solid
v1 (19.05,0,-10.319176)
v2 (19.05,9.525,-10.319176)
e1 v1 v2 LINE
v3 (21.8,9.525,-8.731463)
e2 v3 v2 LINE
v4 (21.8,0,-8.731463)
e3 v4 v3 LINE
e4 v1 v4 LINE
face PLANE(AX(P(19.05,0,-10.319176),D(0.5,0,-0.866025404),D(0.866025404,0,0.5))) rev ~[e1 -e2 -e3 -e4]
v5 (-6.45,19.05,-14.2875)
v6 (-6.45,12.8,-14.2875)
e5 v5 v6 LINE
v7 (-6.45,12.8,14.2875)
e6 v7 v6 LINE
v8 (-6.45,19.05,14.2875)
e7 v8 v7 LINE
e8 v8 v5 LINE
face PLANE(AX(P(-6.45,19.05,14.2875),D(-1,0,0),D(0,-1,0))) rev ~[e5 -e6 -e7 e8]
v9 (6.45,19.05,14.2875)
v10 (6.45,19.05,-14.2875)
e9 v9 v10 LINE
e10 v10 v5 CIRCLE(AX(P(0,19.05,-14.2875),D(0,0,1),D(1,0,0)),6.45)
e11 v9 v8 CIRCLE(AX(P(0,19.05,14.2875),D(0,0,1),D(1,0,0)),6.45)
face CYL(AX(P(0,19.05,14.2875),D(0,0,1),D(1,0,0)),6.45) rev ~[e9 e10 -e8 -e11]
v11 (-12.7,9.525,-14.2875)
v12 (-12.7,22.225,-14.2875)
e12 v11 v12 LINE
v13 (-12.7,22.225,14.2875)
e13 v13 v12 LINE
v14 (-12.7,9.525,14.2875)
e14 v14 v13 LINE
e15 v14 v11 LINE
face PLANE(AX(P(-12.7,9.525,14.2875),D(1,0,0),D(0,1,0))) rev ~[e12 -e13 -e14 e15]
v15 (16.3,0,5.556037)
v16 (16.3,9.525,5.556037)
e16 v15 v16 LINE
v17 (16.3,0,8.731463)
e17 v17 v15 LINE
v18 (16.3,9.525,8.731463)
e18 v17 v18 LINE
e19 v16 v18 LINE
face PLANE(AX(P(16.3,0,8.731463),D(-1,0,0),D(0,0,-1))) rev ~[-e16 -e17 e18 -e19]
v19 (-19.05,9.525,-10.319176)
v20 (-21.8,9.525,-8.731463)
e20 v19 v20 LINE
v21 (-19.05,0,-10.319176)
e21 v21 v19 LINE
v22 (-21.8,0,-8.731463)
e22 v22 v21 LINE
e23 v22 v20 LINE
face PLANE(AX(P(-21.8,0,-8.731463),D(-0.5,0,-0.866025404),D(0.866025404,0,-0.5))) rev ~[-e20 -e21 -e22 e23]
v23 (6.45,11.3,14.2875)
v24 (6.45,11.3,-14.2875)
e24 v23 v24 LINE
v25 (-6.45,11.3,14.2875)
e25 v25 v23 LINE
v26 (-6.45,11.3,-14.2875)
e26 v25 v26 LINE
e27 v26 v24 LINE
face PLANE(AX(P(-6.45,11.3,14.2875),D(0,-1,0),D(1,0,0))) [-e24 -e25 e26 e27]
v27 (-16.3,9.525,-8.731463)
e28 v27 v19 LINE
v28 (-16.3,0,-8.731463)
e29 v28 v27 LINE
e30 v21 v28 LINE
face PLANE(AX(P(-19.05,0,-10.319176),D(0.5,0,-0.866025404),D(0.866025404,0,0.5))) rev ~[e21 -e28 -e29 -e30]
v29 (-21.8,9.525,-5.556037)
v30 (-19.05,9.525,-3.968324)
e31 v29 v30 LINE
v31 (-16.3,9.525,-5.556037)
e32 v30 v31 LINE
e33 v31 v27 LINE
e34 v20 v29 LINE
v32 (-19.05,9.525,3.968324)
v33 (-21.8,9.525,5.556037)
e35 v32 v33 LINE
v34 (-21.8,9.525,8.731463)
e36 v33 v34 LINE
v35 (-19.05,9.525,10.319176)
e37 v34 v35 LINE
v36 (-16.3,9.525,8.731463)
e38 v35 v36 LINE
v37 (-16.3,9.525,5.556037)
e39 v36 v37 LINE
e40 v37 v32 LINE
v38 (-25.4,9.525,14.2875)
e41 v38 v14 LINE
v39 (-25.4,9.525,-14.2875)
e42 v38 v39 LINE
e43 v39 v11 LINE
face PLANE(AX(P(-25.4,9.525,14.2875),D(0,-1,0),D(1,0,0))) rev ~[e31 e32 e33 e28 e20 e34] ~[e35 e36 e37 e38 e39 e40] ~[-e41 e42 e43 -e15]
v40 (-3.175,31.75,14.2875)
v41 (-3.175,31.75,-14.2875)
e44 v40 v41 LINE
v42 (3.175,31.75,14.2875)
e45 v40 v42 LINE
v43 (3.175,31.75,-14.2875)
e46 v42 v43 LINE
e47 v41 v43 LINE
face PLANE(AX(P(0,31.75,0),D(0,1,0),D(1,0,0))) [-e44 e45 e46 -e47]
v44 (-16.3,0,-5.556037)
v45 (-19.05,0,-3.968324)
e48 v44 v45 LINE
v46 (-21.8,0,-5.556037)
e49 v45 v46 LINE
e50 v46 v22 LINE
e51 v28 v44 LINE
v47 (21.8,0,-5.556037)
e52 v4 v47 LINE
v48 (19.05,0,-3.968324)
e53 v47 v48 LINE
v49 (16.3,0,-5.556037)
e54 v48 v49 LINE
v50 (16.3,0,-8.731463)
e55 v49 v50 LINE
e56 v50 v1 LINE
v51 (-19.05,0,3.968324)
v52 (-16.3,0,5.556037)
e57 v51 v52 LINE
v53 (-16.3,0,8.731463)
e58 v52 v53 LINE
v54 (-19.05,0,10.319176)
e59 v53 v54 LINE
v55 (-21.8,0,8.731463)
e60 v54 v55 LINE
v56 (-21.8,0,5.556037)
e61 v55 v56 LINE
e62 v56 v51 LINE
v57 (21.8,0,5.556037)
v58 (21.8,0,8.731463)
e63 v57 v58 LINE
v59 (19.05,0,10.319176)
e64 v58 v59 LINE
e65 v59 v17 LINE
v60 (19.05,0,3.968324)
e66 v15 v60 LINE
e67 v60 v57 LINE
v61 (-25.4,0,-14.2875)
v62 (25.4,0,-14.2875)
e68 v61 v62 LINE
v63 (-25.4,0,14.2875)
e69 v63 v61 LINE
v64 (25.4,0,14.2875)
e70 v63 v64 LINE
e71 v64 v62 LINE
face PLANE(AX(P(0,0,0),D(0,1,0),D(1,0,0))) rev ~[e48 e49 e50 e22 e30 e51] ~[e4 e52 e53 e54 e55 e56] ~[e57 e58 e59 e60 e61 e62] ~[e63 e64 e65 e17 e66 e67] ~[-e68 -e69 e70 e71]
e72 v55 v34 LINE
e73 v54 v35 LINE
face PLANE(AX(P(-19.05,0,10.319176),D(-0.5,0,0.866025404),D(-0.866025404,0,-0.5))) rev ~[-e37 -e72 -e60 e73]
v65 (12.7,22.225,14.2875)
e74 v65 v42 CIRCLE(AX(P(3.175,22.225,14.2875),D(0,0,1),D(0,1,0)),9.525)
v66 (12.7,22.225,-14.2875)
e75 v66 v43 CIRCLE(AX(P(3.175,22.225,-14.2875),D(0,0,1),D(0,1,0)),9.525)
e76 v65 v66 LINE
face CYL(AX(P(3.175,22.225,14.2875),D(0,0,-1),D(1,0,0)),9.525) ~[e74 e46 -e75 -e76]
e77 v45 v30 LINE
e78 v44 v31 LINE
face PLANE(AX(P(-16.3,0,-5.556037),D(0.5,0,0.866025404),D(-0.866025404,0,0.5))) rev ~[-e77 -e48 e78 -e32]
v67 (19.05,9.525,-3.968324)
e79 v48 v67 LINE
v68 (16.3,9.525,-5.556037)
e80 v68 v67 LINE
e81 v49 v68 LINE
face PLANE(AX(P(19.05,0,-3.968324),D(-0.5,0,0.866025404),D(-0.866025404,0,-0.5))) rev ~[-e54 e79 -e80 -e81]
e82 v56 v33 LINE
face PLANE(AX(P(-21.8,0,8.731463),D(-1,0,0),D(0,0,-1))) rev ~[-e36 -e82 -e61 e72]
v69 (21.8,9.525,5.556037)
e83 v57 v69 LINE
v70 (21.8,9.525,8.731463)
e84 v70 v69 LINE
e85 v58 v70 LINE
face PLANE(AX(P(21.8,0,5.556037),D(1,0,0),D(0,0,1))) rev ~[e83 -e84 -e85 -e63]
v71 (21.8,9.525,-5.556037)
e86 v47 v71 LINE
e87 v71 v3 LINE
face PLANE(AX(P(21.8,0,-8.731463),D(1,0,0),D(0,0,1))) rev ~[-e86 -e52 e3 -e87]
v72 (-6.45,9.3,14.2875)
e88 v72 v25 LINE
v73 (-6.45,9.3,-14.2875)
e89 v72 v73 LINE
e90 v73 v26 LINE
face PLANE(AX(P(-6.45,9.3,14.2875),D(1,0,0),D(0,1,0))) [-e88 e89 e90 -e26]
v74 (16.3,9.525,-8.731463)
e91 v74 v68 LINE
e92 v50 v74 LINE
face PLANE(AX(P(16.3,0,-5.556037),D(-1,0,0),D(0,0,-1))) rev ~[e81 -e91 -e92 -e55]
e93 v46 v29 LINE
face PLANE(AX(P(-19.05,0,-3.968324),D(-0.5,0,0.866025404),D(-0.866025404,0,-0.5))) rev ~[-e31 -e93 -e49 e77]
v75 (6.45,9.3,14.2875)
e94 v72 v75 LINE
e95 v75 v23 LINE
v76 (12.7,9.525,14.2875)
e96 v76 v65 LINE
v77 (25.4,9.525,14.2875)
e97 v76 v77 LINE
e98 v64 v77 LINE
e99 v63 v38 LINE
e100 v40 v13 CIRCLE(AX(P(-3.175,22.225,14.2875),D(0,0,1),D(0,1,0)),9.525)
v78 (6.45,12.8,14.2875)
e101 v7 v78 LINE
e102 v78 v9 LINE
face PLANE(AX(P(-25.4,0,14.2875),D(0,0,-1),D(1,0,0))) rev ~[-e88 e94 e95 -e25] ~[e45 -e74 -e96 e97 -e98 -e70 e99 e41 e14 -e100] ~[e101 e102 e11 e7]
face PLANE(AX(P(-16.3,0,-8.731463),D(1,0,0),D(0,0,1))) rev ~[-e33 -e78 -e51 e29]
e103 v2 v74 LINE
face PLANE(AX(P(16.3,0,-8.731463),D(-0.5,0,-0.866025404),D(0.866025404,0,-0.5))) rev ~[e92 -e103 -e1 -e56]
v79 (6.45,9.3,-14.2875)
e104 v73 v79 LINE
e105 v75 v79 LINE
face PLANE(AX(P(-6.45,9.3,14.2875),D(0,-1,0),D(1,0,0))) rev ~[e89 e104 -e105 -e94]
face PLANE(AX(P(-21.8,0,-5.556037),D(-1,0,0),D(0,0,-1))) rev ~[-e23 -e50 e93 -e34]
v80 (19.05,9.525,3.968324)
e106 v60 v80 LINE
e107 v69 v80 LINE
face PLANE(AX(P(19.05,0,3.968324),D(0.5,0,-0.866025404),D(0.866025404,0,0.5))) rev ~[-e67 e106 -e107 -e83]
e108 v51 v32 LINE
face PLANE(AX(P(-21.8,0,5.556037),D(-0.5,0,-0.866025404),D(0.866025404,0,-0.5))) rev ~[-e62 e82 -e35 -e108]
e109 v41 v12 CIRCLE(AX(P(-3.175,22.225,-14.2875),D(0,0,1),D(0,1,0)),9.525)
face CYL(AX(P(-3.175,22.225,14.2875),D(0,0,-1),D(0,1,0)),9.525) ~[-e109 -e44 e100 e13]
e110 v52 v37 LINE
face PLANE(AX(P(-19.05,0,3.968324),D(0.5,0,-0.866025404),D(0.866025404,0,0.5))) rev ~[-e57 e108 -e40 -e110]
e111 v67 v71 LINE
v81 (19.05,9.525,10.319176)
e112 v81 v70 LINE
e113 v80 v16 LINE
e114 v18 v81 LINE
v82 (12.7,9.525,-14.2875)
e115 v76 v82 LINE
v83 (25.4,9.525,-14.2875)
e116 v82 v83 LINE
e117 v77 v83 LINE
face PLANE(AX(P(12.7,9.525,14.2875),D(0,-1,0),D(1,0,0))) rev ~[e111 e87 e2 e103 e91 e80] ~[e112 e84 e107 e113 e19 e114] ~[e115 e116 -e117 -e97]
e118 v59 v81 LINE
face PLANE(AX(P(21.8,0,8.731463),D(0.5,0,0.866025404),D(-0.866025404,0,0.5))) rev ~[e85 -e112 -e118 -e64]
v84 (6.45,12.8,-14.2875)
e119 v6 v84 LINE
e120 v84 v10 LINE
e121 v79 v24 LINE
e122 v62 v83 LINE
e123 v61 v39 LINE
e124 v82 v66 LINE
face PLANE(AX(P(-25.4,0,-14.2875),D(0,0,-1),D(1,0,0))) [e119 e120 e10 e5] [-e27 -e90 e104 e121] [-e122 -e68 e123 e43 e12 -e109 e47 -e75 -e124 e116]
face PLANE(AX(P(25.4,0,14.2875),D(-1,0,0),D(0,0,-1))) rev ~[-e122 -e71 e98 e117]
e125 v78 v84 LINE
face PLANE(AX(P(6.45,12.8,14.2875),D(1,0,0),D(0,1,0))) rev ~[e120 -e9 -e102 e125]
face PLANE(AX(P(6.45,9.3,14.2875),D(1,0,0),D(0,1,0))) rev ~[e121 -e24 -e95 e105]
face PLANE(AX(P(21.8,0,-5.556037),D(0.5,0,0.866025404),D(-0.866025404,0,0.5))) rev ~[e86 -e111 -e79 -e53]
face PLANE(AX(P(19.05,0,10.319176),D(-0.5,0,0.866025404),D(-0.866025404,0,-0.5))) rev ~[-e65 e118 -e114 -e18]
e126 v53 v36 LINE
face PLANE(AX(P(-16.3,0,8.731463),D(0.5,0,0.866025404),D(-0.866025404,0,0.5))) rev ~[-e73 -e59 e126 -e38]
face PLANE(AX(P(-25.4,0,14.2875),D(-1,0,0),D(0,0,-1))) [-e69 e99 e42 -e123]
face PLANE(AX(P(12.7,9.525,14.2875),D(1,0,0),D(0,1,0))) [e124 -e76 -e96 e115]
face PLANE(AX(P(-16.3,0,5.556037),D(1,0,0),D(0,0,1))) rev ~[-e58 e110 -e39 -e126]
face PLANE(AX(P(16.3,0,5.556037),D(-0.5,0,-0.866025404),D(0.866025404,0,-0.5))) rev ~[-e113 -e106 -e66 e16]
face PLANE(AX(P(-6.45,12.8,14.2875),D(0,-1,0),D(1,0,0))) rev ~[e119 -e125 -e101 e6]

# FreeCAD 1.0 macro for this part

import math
import FreeCAD as App
import Part
import Sketcher
from FreeCAD import Vector
Q = App.Units.Quantity


def edges_at(feature, points):
    """Names of the edges that pass closest to the given points."""
    edges = feature.Shape.Edges
    near = lambda p: min(range(len(edges)), key=lambda i: edges[i].distToShape(Part.Vertex(*p))[0])
    return sorted({f"Edge{near(p) + 1}" for p in points})

doc = App.newDocument("Part")
params = doc.addObject("Spreadsheet::Sheet", "Params")
for row, (alias, value) in enumerate([
    ("sketch1_width", "2 in"),
    ("sketch1_height", "1.125 in"),
    ("pad1_length", "1.25 in"),
    ("sketch2_width", "0.5 in"),
    ("sketch2_height", "0.875 in"),
    ("pocket1_length", "1.125 in"),
    ("fillet_radius", "0.375 in"),
], start=1):
    params.set(f"A{row}", alias)
    params.set(f"B{row}", "=" + value)
    params.setAlias(f"B{row}", alias)

body = doc.addObject("PartDesign::Body", "Body")

sketch1 = doc.addObject("Sketcher::SketchObject", "Sketch")
body.addObject(sketch1)
sketch1.AttachmentSupport = (doc.XZ_Plane, [""])
sketch1.MapMode = "FlatFace"
sketch1.addGeometry([
    Part.LineSegment(Vector(-25, -14, 0), Vector(-25, 14, 0)),
    Part.LineSegment(Vector(-25, 14, 0), Vector(25, 14, 0)),
    Part.LineSegment(Vector(25, 14, 0), Vector(25, -14, 0)),
    Part.LineSegment(Vector(25, -14, 0), Vector(-25, -14, 0)),
], False)
sketch1.addConstraint([
    Sketcher.Constraint("Coincident", 0, 2, 1, 1),
    Sketcher.Constraint("Coincident", 1, 2, 2, 1),
    Sketcher.Constraint("Coincident", 2, 2, 3, 1),
    Sketcher.Constraint("Coincident", 3, 2, 0, 1),
    Sketcher.Constraint("Vertical", 0),
    Sketcher.Constraint("Horizontal", 1),
    Sketcher.Constraint("Vertical", 2),
    Sketcher.Constraint("Horizontal", 3),
    Sketcher.Constraint("Symmetric", 0, 2, 2, 2, -1, 1),
    Sketcher.Constraint("DistanceX", 1, 1, 1, 2, Q("2 in")),
    Sketcher.Constraint("DistanceY", 0, 1, 0, 2, Q("1.125 in")),
])
sketch1.setExpression("Constraints[9]", "Params.sketch1_width")
sketch1.setExpression("Constraints[10]", "Params.sketch1_height")
pad1 = doc.addObject("PartDesign::Pad", "Pad")
body.addObject(pad1)
pad1.Profile = sketch1
pad1.setExpression("Length", "Params.pad1_length")
pad1.Reversed = True

sketch2 = doc.addObject("Sketcher::SketchObject", "Sketch001")
body.addObject(sketch2)
sketch2.AttachmentSupport = (doc.XY_Plane, [""])
sketch2.MapMode = "FlatFace"
sketch2.AttachmentOffset = App.Placement(Vector(0, 0, 0.5625 * 25.4), App.Rotation())
sketch2.addGeometry([
    Part.LineSegment(Vector(-25.4, 31.8, 0), Vector(-25.4, 9.5, 0)),
    Part.LineSegment(Vector(-25.4, 9.5, 0), Vector(-12.7, 9.5, 0)),
    Part.LineSegment(Vector(-12.7, 9.5, 0), Vector(-12.7, 31.8, 0)),
    Part.LineSegment(Vector(-12.7, 31.8, 0), Vector(-25.4, 31.8, 0)),
    Part.LineSegment(Vector(6.5, 12.8, 0), Vector(6.5, 19.1, 0)),
    Part.ArcOfCircle(Part.Circle(Vector(0, 19.1, 0), Vector(0, 0, 1), 6.5), math.radians(0), math.radians(180)),
    Part.LineSegment(Vector(-6.5, 19.1, 0), Vector(-6.5, 12.8, 0)),
    Part.LineSegment(Vector(-6.5, 12.8, 0), Vector(6.5, 12.8, 0)),
    Part.LineSegment(Vector(-6.5, 11.3, 0), Vector(-6.5, 9.3, 0)),
    Part.LineSegment(Vector(-6.5, 9.3, 0), Vector(6.5, 9.3, 0)),
    Part.LineSegment(Vector(6.5, 9.3, 0), Vector(6.5, 11.3, 0)),
    Part.LineSegment(Vector(6.5, 11.3, 0), Vector(-6.5, 11.3, 0)),
    Part.LineSegment(Vector(12.7, 31.8, 0), Vector(12.7, 9.5, 0)),
    Part.LineSegment(Vector(12.7, 9.5, 0), Vector(25.4, 9.5, 0)),
    Part.LineSegment(Vector(25.4, 9.5, 0), Vector(25.4, 31.8, 0)),
    Part.LineSegment(Vector(25.4, 31.8, 0), Vector(12.7, 31.8, 0)),
], False)
sketch2.addConstraint([
    Sketcher.Constraint("Coincident", 0, 2, 1, 1),
    Sketcher.Constraint("Coincident", 1, 2, 2, 1),
    Sketcher.Constraint("Coincident", 2, 2, 3, 1),
    Sketcher.Constraint("Coincident", 3, 2, 0, 1),
    Sketcher.Constraint("Tangent", 4, 2, 5, 1),
    Sketcher.Constraint("Tangent", 5, 2, 6, 1),
    Sketcher.Constraint("Coincident", 6, 2, 7, 1),
    Sketcher.Constraint("Coincident", 7, 2, 4, 1),
    Sketcher.Constraint("Coincident", 8, 2, 9, 1),
    Sketcher.Constraint("Coincident", 9, 2, 10, 1),
    Sketcher.Constraint("Coincident", 10, 2, 11, 1),
    Sketcher.Constraint("Coincident", 11, 2, 8, 1),
    Sketcher.Constraint("Coincident", 12, 2, 13, 1),
    Sketcher.Constraint("Coincident", 13, 2, 14, 1),
    Sketcher.Constraint("Coincident", 14, 2, 15, 1),
    Sketcher.Constraint("Coincident", 15, 2, 12, 1),
    Sketcher.Constraint("Vertical", 0),
    Sketcher.Constraint("Horizontal", 1),
    Sketcher.Constraint("Vertical", 2),
    Sketcher.Constraint("Horizontal", 3),
    Sketcher.Constraint("Vertical", 4),
    Sketcher.Constraint("Vertical", 6),
    Sketcher.Constraint("Horizontal", 7),
    Sketcher.Constraint("Vertical", 8),
    Sketcher.Constraint("Horizontal", 9),
    Sketcher.Constraint("Vertical", 10),
    Sketcher.Constraint("Horizontal", 11),
    Sketcher.Constraint("Vertical", 12),
    Sketcher.Constraint("Horizontal", 13),
    Sketcher.Constraint("Vertical", 14),
    Sketcher.Constraint("Horizontal", 15),
    Sketcher.Constraint("Symmetric", 1, 2, 12, 2, -2),
    Sketcher.Constraint("Symmetric", 3, 2, 14, 2, -2),
    Sketcher.Constraint("PointOnObject", 5, 3, -2),
    Sketcher.Constraint("Vertical", 6, 2, 8, 2),
    Sketcher.Constraint("Vertical", 7, 2, 9, 2),
    Sketcher.Constraint("DistanceX", 1, 1, 1, 2, Q("0.5 in")),
    Sketcher.Constraint("DistanceX", 0, 2, -1, 1, Q("1 in")),
    Sketcher.Constraint("DistanceY", 5, 3, 2, 2, Q("0.5 in")),
    Sketcher.Constraint("DistanceY", 0, 2, 0, 1, Q("0.875 in")),
    Sketcher.Constraint("DistanceY", -1, 1, 5, 3, Q("0.75 in")),
    Sketcher.Constraint("Radius", 5, 6.45),
    Sketcher.Constraint("DistanceY", 4, 1, 4, 2, 6.25),
    Sketcher.Constraint("DistanceY", 8, 2, 8, 1, 2.0),
    Sketcher.Constraint("DistanceY", -1, 1, 8, 2, 9.3),
])
sketch2.setExpression("Constraints[36]", "Params.sketch2_width")
sketch2.setExpression("Constraints[39]", "Params.sketch2_height")
pocket1 = doc.addObject("PartDesign::Pocket", "Pocket")
body.addObject(pocket1)
pocket1.Profile = sketch2
pocket1.setExpression("Length", "Params.pocket1_length")
doc.recompute()

fillet = doc.addObject("PartDesign::Fillet", "Fillet")
body.addObject(fillet)
fillet.Base = (pocket1, edges_at(pocket1, [(-12.7, 31.75, 0), (12.7, 31.75, 0)]))
fillet.setExpression("Radius", "Params.fillet_radius")

sketch3 = doc.addObject("Sketcher::SketchObject", "Sketch002")
body.addObject(sketch3)
sketch3.AttachmentSupport = (doc.XZ_Plane, [""])
sketch3.MapMode = "FlatFace"
sketch3.addGeometry([
    Part.LineSegment(Vector(16.3, -5.6, 0), Vector(16.3, -8.7, 0)),
    Part.LineSegment(Vector(16.3, -8.7, 0), Vector(19.1, -10.3, 0)),
    Part.LineSegment(Vector(19.1, -10.3, 0), Vector(21.8, -8.7, 0)),
    Part.LineSegment(Vector(21.8, -8.7, 0), Vector(21.8, -5.6, 0)),
    Part.LineSegment(Vector(21.8, -5.6, 0), Vector(19.1, -4, 0)),
    Part.LineSegment(Vector(19.1, -4, 0), Vector(16.3, -5.6, 0)),
], False)
sketch3.addConstraint([
    Sketcher.Constraint("Coincident", 0, 2, 1, 1),
    Sketcher.Constraint("Coincident", 1, 2, 2, 1),
    Sketcher.Constraint("Coincident", 2, 2, 3, 1),
    Sketcher.Constraint("Coincident", 3, 2, 4, 1),
    Sketcher.Constraint("Coincident", 4, 2, 5, 1),
    Sketcher.Constraint("Coincident", 5, 2, 0, 1),
    Sketcher.Constraint("Vertical", 0),
    Sketcher.Constraint("Vertical", 3),
    Sketcher.Constraint("Parallel", 1, 4),
    Sketcher.Constraint("Parallel", 2, 5),
    Sketcher.Constraint("Horizontal", 0, 2, 2, 2),
    Sketcher.Constraint("Horizontal", 3, 2, 5, 2),
    Sketcher.Constraint("Vertical", 1, 2, 4, 2),
    Sketcher.Constraint("Angle", 1, Q("-30 deg")),
    Sketcher.Constraint("DistanceX", -1, 1, 1, 2, Q("0.75 in")),
    Sketcher.Constraint("DistanceX", -1, 1, 0, 2, 16.3),
    Sketcher.Constraint("DistanceY", 0, 2, 0, 1, 3.175426),
    Sketcher.Constraint("DistanceY", 0, 2, -1, 1, 8.731463),
])
pocket2 = doc.addObject("PartDesign::Pocket", "Pocket001")
body.addObject(pocket2)
pocket2.Profile = sketch3
pocket2.Type = "UpToFirst"

sketch4 = doc.addObject("Sketcher::SketchObject", "Sketch003")
body.addObject(sketch4)
sketch4.AttachmentSupport = (doc.XZ_Plane, [""])
sketch4.MapMode = "FlatFace"
sketch4.addGeometry([
    Part.LineSegment(Vector(16.3, 5.6, 0), Vector(19.1, 4, 0)),
    Part.LineSegment(Vector(19.1, 4, 0), Vector(21.8, 5.6, 0)),
    Part.LineSegment(Vector(21.8, 5.6, 0), Vector(21.8, 8.7, 0)),
    Part.LineSegment(Vector(21.8, 8.7, 0), Vector(19.1, 10.3, 0)),
    Part.LineSegment(Vector(19.1, 10.3, 0), Vector(16.3, 8.7, 0)),
    Part.LineSegment(Vector(16.3, 8.7, 0), Vector(16.3, 5.6, 0)),
], False)
sketch4.addConstraint([
    Sketcher.Constraint("Coincident", 0, 2, 1, 1),
    Sketcher.Constraint("Coincident", 1, 2, 2, 1),
    Sketcher.Constraint("Coincident", 2, 2, 3, 1),
    Sketcher.Constraint("Coincident", 3, 2, 4, 1),
    Sketcher.Constraint("Coincident", 4, 2, 5, 1),
    Sketcher.Constraint("Coincident", 5, 2, 0, 1),
    Sketcher.Constraint("Vertical", 2),
    Sketcher.Constraint("Vertical", 5),
    Sketcher.Constraint("Parallel", 0, 3),
    Sketcher.Constraint("Parallel", 1, 4),
    Sketcher.Constraint("Horizontal", 2, 2, 4, 2),
    Sketcher.Constraint("Horizontal", 1, 2, 5, 2),
    Sketcher.Constraint("Vertical", 0, 2, 3, 2),
    Sketcher.Constraint("Angle", 0, Q("-30 deg")),
    Sketcher.Constraint("DistanceX", -1, 1, 0, 2, Q("0.75 in")),
    Sketcher.Constraint("DistanceX", -1, 1, 1, 2, 21.8),
    Sketcher.Constraint("DistanceY", 2, 1, 2, 2, 3.175426),
    Sketcher.Constraint("DistanceY", -1, 1, 0, 2, 3.968324),
])
pocket3 = doc.addObject("PartDesign::Pocket", "Pocket002")
body.addObject(pocket3)
pocket3.Profile = sketch4
pocket3.Type = "UpToFirst"

sketch5 = doc.addObject("Sketcher::SketchObject", "Sketch004")
body.addObject(sketch5)
sketch5.AttachmentSupport = (doc.XZ_Plane, [""])
sketch5.MapMode = "FlatFace"
sketch5.addGeometry([
    Part.LineSegment(Vector(-16.3, -8.7, 0), Vector(-16.3, -5.6, 0)),
    Part.LineSegment(Vector(-16.3, -5.6, 0), Vector(-19.1, -4, 0)),
    Part.LineSegment(Vector(-19.1, -4, 0), Vector(-21.8, -5.6, 0)),
    Part.LineSegment(Vector(-21.8, -5.6, 0), Vector(-21.8, -8.7, 0)),
    Part.LineSegment(Vector(-21.8, -8.7, 0), Vector(-19.1, -10.3, 0)),
    Part.LineSegment(Vector(-19.1, -10.3, 0), Vector(-16.3, -8.7, 0)),
], False)
sketch5.addConstraint([
    Sketcher.Constraint("Coincident", 0, 2, 1, 1),
    Sketcher.Constraint("Coincident", 1, 2, 2, 1),
    Sketcher.Constraint("Coincident", 2, 2, 3, 1),
    Sketcher.Constraint("Coincident", 3, 2, 4, 1),
    Sketcher.Constraint("Coincident", 4, 2, 5, 1),
    Sketcher.Constraint("Coincident", 5, 2, 0, 1),
    Sketcher.Constraint("Vertical", 0),
    Sketcher.Constraint("Vertical", 3),
    Sketcher.Constraint("Parallel", 1, 4),
    Sketcher.Constraint("Parallel", 2, 5),
    Sketcher.Constraint("Horizontal", 0, 2, 2, 2),
    Sketcher.Constraint("Horizontal", 3, 2, 5, 2),
    Sketcher.Constraint("Vertical", 1, 2, 4, 2),
    Sketcher.Constraint("Angle", 1, Q("150 deg")),
    Sketcher.Constraint("DistanceX", 1, 2, -1, 1, Q("0.75 in")),
    Sketcher.Constraint("DistanceX", 0, 2, -1, 1, 16.3),
    Sketcher.Constraint("DistanceY", 0, 1, 0, 2, 3.175426),
    Sketcher.Constraint("DistanceY", 0, 2, -1, 1, 5.556037),
])
pocket4 = doc.addObject("PartDesign::Pocket", "Pocket003")
body.addObject(pocket4)
pocket4.Profile = sketch5
pocket4.Type = "UpToFirst"

sketch6 = doc.addObject("Sketcher::SketchObject", "Sketch005")
body.addObject(sketch6)
sketch6.AttachmentSupport = (doc.XZ_Plane, [""])
sketch6.MapMode = "FlatFace"
sketch6.addGeometry([
    Part.LineSegment(Vector(-16.3, 5.6, 0), Vector(-16.3, 8.7, 0)),
    Part.LineSegment(Vector(-16.3, 8.7, 0), Vector(-19.1, 10.3, 0)),
    Part.LineSegment(Vector(-19.1, 10.3, 0), Vector(-21.8, 8.7, 0)),
    Part.LineSegment(Vector(-21.8, 8.7, 0), Vector(-21.8, 5.6, 0)),
    Part.LineSegment(Vector(-21.8, 5.6, 0), Vector(-19.1, 4, 0)),
    Part.LineSegment(Vector(-19.1, 4, 0), Vector(-16.3, 5.6, 0)),
], False)
sketch6.addConstraint([
    Sketcher.Constraint("Coincident", 0, 2, 1, 1),
    Sketcher.Constraint("Coincident", 1, 2, 2, 1),
    Sketcher.Constraint("Coincident", 2, 2, 3, 1),
    Sketcher.Constraint("Coincident", 3, 2, 4, 1),
    Sketcher.Constraint("Coincident", 4, 2, 5, 1),
    Sketcher.Constraint("Coincident", 5, 2, 0, 1),
    Sketcher.Constraint("Vertical", 0),
    Sketcher.Constraint("Vertical", 3),
    Sketcher.Constraint("Parallel", 1, 4),
    Sketcher.Constraint("Parallel", 2, 5),
    Sketcher.Constraint("Horizontal", 0, 2, 2, 2),
    Sketcher.Constraint("Horizontal", 3, 2, 5, 2),
    Sketcher.Constraint("Vertical", 1, 2, 4, 2),
    Sketcher.Constraint("Angle", 1, Q("150 deg")),
    Sketcher.Constraint("DistanceX", 1, 2, -1, 1, Q("0.75 in")),
    Sketcher.Constraint("DistanceX", 0, 2, -1, 1, 16.3),
    Sketcher.Constraint("DistanceY", 0, 1, 0, 2, 3.175426),
    Sketcher.Constraint("DistanceY", -1, 1, 0, 2, 8.731463),
])
pocket5 = doc.addObject("PartDesign::Pocket", "Pocket004")
body.addObject(pocket5)
pocket5.Profile = sketch6
pocket5.Type = "UpToFirst"

doc.recompute()
